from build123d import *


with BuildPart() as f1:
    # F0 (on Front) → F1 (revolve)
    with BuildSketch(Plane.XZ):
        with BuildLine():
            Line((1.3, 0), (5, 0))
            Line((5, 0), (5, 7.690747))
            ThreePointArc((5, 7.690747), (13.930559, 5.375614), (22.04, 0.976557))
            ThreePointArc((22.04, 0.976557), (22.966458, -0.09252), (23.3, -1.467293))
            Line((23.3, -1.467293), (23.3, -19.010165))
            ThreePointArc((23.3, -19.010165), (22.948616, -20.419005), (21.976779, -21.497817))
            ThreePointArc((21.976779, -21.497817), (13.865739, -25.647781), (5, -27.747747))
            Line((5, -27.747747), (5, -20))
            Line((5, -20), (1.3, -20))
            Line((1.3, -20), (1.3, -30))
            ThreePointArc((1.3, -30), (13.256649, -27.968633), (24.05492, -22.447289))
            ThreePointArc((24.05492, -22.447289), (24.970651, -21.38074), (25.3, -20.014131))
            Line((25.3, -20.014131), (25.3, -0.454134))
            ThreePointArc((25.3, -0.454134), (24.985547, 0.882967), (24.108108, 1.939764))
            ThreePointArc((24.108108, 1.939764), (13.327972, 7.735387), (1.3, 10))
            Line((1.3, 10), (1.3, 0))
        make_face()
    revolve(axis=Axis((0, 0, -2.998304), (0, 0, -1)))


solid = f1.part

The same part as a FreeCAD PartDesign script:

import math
import FreeCAD as App
import Part
import Sketcher
from FreeCAD import Vector

doc = App.newDocument("Part")
params = doc.addObject("Spreadsheet::Sheet", "Params")
for row, (alias, value) in enumerate([
    ("sketch1_radius", "2.999999 mm"),
    ("sketch1_height", "10 mm"),
    ("sketch1_width", "3.7 mm"),
    ("revolution_angle", "360 deg"),
], start=1):
    params.set(f"A{row}", alias)
    params.set(f"B{row}", "=" + value)
    params.setAlias(f"B{row}", alias)

body = doc.addObject("PartDesign::Body", "Body")

sketch1 = doc.addObject("Sketcher::SketchObject", "Sketch")
body.addObject(sketch1)
sketch1.AttachmentSupport = (doc.XZ_Plane, [""])
sketch1.MapMode = "FlatFace"
sketch1.addGeometry([
    Part.LineSegment(Vector(1.3, 0, 0), Vector(5, 0, 0)),
    Part.LineSegment(Vector(5, 0, 0), Vector(5, 7.7, 0)),
    Part.ArcOfCircle(Part.Circle(Vector(0, -30, 0), Vector(0, 0, 1), 38), math.radians(55), math.radians(82)),
    Part.ArcOfCircle(Part.Circle(Vector(20.3, -1.5, 0), Vector(0, 0, 1), 3), math.radians(0), math.radians(55)),
    Part.LineSegment(Vector(23.3, -1.5, 0), Vector(23.3, -19, 0)),
    Part.ArcOfCircle(Part.Circle(Vector(20.3, -19, 0), Vector(0, 0, 1), 3), math.radians(-56), math.radians(0)),
    Part.ArcOfCircle(Part.Circle(Vector(0.7, 10, 0), Vector(0, 0, 1), 38), math.radians(-84), math.radians(-56)),
    Part.LineSegment(Vector(5, -27.7, 0), Vector(5, -20, 0)),
    Part.LineSegment(Vector(5, -20, 0), Vector(1.3, -20, 0)),
    Part.LineSegment(Vector(1.3, -20, 0), Vector(1.3, -30, 0)),
    Part.ArcOfCircle(Part.Circle(Vector(0.7, 10, 0), Vector(0, 0, 1), 40), math.radians(-89), math.radians(-54)),
    Part.ArcOfCircle(Part.Circle(Vector(22.3, -20, 0), Vector(0, 0, 1), 3), math.radians(-54), math.radians(0)),
    Part.LineSegment(Vector(25.3, -20, 0), Vector(25.3, -0.5, 0)),
    Part.ArcOfCircle(Part.Circle(Vector(22.3, -0.5, 0), Vector(0, 0, 1), 3), math.radians(0), math.radians(53)),
    Part.ArcOfCircle(Part.Circle(Vector(0, -30, 0), Vector(0, 0, 1), 40), math.radians(53), math.radians(88)),
    Part.LineSegment(Vector(1.3, 10, 0), Vector(1.3, 0, 0)),
], False)
sketch1.addConstraint([
    Sketcher.Constraint("Coincident", 0, 2, 1, 1),
    Sketcher.Constraint("Coincident", 1, 2, 2, 2),
    Sketcher.Constraint("Tangent", 2, 1, 3, 2),
    Sketcher.Constraint("Tangent", 3, 1, 4, 1),
    Sketcher.Constraint("Tangent", 4, 2, 5, 2),
    Sketcher.Constraint("Tangent", 5, 1, 6, 2),
    Sketcher.Constraint("Coincident", 6, 1, 7, 1),
    Sketcher.Constraint("Coincident", 7, 2, 8, 1),
    Sketcher.Constraint("Coincident", 8, 2, 9, 1),
    Sketcher.Constraint("Coincident", 9, 2, 10, 1),
    Sketcher.Constraint("Tangent", 10, 2, 11, 1),
    Sketcher.Constraint("Tangent", 11, 2, 12, 1),
    Sketcher.Constraint("Tangent", 12, 2, 13, 1),
    Sketcher.Constraint("Tangent", 13, 2, 14, 1),
    Sketcher.Constraint("Coincident", 14, 2, 15, 1),
    Sketcher.Constraint("Coincident", 15, 2, 0, 1),
    Sketcher.Constraint("Horizontal", 0),
    Sketcher.Constraint("Vertical", 1),
    Sketcher.Constraint("Vertical", 4),
    Sketcher.Constraint("Vertical", 7),
    Sketcher.Constraint("Horizontal", 8),
    Sketcher.Constraint("Vertical", 9),
    Sketcher.Constraint("Vertical", 12),
    Sketcher.Constraint("Vertical", 15),
    Sketcher.Constraint("Coincident", 14, 3, 2, 3),
    Sketcher.Constraint("Equal", 3, 5),
    Sketcher.Constraint("Equal", 5, 11),
    Sketcher.Constraint("PointOnObject", 0, 2, -1),
    Sketcher.Constraint("Vertical", 1, 2, 6, 1),
    Sketcher.Constraint("Vertical", 9, 2, 14, 2),
    Sketcher.Constraint("Equal", 9, 15),
    Sketcher.Constraint("Radius", 13, 2.999999),
    Sketcher.Constraint("DistanceY", 9, 2, 9, 1, 10.0),
    Sketcher.Constraint("DistanceX", 0, 1, 0, 2, 3.7),
    Sketcher.Constraint("DistanceX", -1, 1, 0, 2, 5.0),
    Sketcher.Constraint("DistanceY", 7, 2, -1, 1, 20.0),
    Sketcher.Constraint("DistanceX", 5, 3, 11, 3, 1.999998),
    Sketcher.Constraint("DistanceX", -1, 1, 13, 3, 22.300001),
    Sketcher.Constraint("DistanceX", 2, 3, 5, 3, 20.300002),
    Sketcher.Constraint("DistanceX", -1, 1, 2, 1, 22.04),
    Sketcher.Constraint("Radius", 14, 40.00001),
    Sketcher.Constraint("Radius", 2, 38.000018),
    Sketcher.Constraint("Radius", 6, 37.999993),
    Sketcher.Constraint("Radius", 10, 40.000004),
    Sketcher.Constraint("DistanceY", 4, 2, 4, 1, 17.542872),
    Sketcher.Constraint("DistanceY", 7, 1, 7, 2, 7.747747),
    Sketcher.Constraint("DistanceY", 12, 1, 12, 2, 19.559997),
])
sketch1.setExpression("Constraints[31]", "Params.sketch1_radius")
sketch1.setExpression("Constraints[32]", "Params.sketch1_height")
sketch1.setExpression("Constraints[33]", "Params.sketch1_width")
revolution = doc.addObject("PartDesign::Revolution", "Revolution")
body.addObject(revolution)
revolution.Profile = sketch1
revolution.ReferenceAxis = (sketch1, ["V_Axis"])
revolution.setExpression("Angle", "Params.revolution_angle")

doc.recompute()
